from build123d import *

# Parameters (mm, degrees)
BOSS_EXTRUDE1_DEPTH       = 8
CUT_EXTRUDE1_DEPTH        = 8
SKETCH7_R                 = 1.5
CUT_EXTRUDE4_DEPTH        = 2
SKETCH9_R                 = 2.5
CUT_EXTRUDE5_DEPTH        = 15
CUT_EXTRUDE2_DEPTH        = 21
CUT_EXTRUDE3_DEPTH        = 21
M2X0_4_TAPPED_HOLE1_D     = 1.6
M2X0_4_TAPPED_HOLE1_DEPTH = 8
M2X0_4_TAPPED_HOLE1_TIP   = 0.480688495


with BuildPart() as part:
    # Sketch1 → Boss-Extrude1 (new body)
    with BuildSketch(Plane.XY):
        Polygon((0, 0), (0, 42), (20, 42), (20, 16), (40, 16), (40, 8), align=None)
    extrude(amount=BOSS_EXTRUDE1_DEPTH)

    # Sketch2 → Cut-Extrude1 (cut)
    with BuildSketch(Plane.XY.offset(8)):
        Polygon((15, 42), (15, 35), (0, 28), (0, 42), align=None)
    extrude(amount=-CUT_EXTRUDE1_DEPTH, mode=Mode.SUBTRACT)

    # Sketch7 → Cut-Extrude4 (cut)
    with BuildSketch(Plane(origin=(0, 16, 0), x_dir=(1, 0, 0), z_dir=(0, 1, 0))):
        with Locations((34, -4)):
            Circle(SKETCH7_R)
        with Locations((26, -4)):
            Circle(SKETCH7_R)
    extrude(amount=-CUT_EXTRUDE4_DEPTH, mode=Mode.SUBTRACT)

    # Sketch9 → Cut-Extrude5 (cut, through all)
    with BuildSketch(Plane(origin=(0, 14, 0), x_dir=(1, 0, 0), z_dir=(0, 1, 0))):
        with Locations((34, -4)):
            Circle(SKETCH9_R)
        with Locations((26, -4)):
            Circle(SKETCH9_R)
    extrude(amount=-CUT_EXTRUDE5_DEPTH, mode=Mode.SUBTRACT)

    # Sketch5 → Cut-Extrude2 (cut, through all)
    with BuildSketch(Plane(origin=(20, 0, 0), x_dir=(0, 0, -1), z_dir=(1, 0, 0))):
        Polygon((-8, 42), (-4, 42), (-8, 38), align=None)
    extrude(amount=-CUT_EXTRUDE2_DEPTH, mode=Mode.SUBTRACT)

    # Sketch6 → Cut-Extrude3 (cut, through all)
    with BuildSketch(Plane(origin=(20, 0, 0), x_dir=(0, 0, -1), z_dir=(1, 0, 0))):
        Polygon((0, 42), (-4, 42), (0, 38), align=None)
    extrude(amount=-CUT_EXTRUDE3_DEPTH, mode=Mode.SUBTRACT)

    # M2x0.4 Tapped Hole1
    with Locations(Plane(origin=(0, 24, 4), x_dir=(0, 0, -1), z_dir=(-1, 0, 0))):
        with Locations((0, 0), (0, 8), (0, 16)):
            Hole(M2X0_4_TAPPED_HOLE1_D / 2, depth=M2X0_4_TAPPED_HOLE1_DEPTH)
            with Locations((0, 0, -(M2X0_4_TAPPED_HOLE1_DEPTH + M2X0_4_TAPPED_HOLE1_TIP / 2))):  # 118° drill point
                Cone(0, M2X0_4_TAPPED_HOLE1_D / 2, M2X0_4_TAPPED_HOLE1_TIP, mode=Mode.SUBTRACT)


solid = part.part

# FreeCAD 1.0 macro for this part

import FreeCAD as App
import Part
import Sketcher
from FreeCAD import Vector
Q = App.Units.Quantity

doc = App.newDocument("Part")
body = doc.addObject("PartDesign::Body", "Body")

# Sketch on XY plane
sketch1 = body.newObject("Sketcher::SketchObject", "Sketch")
sketch1.AttachmentSupport = (doc.getObject("XY_Plane"), [""])
sketch1.MapMode = "FlatFace"
sketch1.addGeometry(Part.LineSegment(Vector(0, 42, 0), Vector(0, 0, 0)), False)
sketch1.addGeometry(Part.LineSegment(Vector(0, 0, 0), Vector(40, 8, 0)), False)
sketch1.addGeometry(Part.LineSegment(Vector(40, 8, 0), Vector(40, 16, 0)), False)
sketch1.addGeometry(Part.LineSegment(Vector(40, 16, 0), Vector(20, 16, 0)), False)
sketch1.addGeometry(Part.LineSegment(Vector(20, 16, 0), Vector(20, 42, 0)), False)
sketch1.addGeometry(Part.LineSegment(Vector(20, 42, 0), Vector(0, 42, 0)), False)
sketch1.addConstraint(Sketcher.Constraint("Coincident", 0, 2, 1, 1))
sketch1.addConstraint(Sketcher.Constraint("Coincident", 1, 2, 2, 1))
sketch1.addConstraint(Sketcher.Constraint("Coincident", 2, 2, 3, 1))
sketch1.addConstraint(Sketcher.Constraint("Coincident", 3, 2, 4, 1))
sketch1.addConstraint(Sketcher.Constraint("Coincident", 4, 2, 5, 1))
sketch1.addConstraint(Sketcher.Constraint("Coincident", 5, 2, 0, 1))
sketch1.addConstraint(Sketcher.Constraint("Vertical", 0))
sketch1.addConstraint(Sketcher.Constraint("Vertical", 2))
sketch1.addConstraint(Sketcher.Constraint("Horizontal", 3))
sketch1.addConstraint(Sketcher.Constraint("Vertical", 4))
sketch1.addConstraint(Sketcher.Constraint("Horizontal", 5))
sketch1.addConstraint(Sketcher.Constraint("Coincident", 0, 2, -1, 1))
sketch1.addConstraint(Sketcher.Constraint("Equal", 3, 5))
sketch1.addConstraint(Sketcher.Constraint("DistanceX", 3, 2, 3, 1, Q("20 mm")))
sketch1.addConstraint(Sketcher.Constraint("DistanceY", 0, 2, 0, 1, Q("42 mm")))
sketch1.addConstraint(Sketcher.Constraint("DistanceY", 2, 1, 2, 2, Q("8 mm")))
sketch1.addConstraint(Sketcher.Constraint("DistanceY", 4, 1, 4, 2, Q("26 mm")))
pad1 = body.newObject("PartDesign::Pad", "Pad")
pad1.Profile = sketch1
pad1.Length = 8

# Sketch on XY plane
sketch2 = body.newObject("Sketcher::SketchObject", "Sketch001")
sketch2.AttachmentSupport = (doc.getObject("XY_Plane"), [""])
sketch2.MapMode = "FlatFace"
sketch2.AttachmentOffset = App.Placement(Vector(0, 0, 8), App.Rotation())
sketch2.addGeometry(Part.LineSegment(Vector(15, 35, 0), Vector(15, 42, 0)), False)
sketch2.addGeometry(Part.LineSegment(Vector(15, 42, 0), Vector(0, 42, 0)), False)
sketch2.addGeometry(Part.LineSegment(Vector(0, 42, 0), Vector(0, 28, 0)), False)
sketch2.addGeometry(Part.LineSegment(Vector(0, 28, 0), Vector(15, 35, 0)), False)
sketch2.addConstraint(Sketcher.Constraint("Coincident", 0, 2, 1, 1))
sketch2.addConstraint(Sketcher.Constraint("Coincident", 1, 2, 2, 1))
sketch2.addConstraint(Sketcher.Constraint("Coincident", 2, 2, 3, 1))
sketch2.addConstraint(Sketcher.Constraint("Coincident", 3, 2, 0, 1))
sketch2.addConstraint(Sketcher.Constraint("Vertical", 0))
sketch2.addConstraint(Sketcher.Constraint("Horizontal", 1))
sketch2.addConstraint(Sketcher.Constraint("Vertical", 2))
sketch2.addConstraint(Sketcher.Constraint("PointOnObject", 1, 2, -2))
sketch2.addConstraint(Sketcher.Constraint("DistanceX", 1, 2, 1, 1, Q("15 mm")))
sketch2.addConstraint(Sketcher.Constraint("DistanceY", 0, 1, 0, 2, Q("7 mm")))
sketch2.addConstraint(Sketcher.Constraint("DistanceY", 2, 2, 2, 1, Q("14 mm")))
sketch2.addConstraint(Sketcher.Constraint("DistanceY", -1, 1, 0, 2, Q("42 mm")))
pocket1 = body.newObject("PartDesign::Pocket", "Pocket")
pocket1.Profile = sketch2
pocket1.Length = 8

# Sketch on XZ plane
sketch3 = body.newObject("Sketcher::SketchObject", "Sketch002")
sketch3.AttachmentSupport = (doc.getObject("XZ_Plane"), [""])
sketch3.MapMode = "FlatFace"
sketch3.AttachmentOffset = App.Placement(Vector(0, 0, -16), App.Rotation())
sketch3.addGeometry(Part.Circle(Vector(34, 4, 0), Vector(0, 0, 1), 1.5), False)
sketch3.addGeometry(Part.Circle(Vector(26, 4, 0), Vector(0, 0, 1), 1.5), False)
sketch3.addConstraint(Sketcher.Constraint("Equal", 0, 1))
sketch3.addConstraint(Sketcher.Constraint("Horizontal", 0, 3, 1, 3))
sketch3.addConstraint(Sketcher.Constraint("Diameter", 0, Q("3 mm")))
sketch3.addConstraint(Sketcher.Constraint("DistanceX", -1, 1, 0, 3, Q("34 mm")))
sketch3.addConstraint(Sketcher.Constraint("DistanceY", -1, 1, 0, 3, Q("4 mm")))
sketch3.addConstraint(Sketcher.Constraint("DistanceX", -1, 1, 1, 3, Q("26 mm")))
pocket2 = body.newObject("PartDesign::Pocket", "Pocket001")
pocket2.Profile = sketch3
pocket2.Length = 2
pocket2.Reversed = True

# Sketch on XZ plane
sketch4 = body.newObject("Sketcher::SketchObject", "Sketch003")
sketch4.AttachmentSupport = (doc.getObject("XZ_Plane"), [""])
sketch4.MapMode = "FlatFace"
sketch4.AttachmentOffset = App.Placement(Vector(0, 0, -14), App.Rotation())
sketch4.addGeometry(Part.Circle(Vector(34, 4, 0), Vector(0, 0, 1), 2.5), False)
sketch4.addGeometry(Part.Circle(Vector(26, 4, 0), Vector(0, 0, 1), 2.5), False)
sketch4.addConstraint(Sketcher.Constraint("Equal", 0, 1))
sketch4.addConstraint(Sketcher.Constraint("Horizontal", 0, 3, 1, 3))
sketch4.addConstraint(Sketcher.Constraint("Diameter", 0, Q("5 mm")))
sketch4.addConstraint(Sketcher.Constraint("DistanceX", -1, 1, 0, 3, Q("34 mm")))
sketch4.addConstraint(Sketcher.Constraint("DistanceY", -1, 1, 0, 3, Q("4 mm")))
sketch4.addConstraint(Sketcher.Constraint("DistanceX", -1, 1, 1, 3, Q("26 mm")))
pocket3 = body.newObject("PartDesign::Pocket", "Pocket002")
pocket3.Profile = sketch4
pocket3.Type = "ThroughAll"
pocket3.Reversed = True

# Sketch on YZ plane
sketch5 = body.newObject("Sketcher::SketchObject", "Sketch004")
sketch5.AttachmentSupport = (doc.getObject("YZ_Plane"), [""])
sketch5.MapMode = "FlatFace"
sketch5.AttachmentOffset = App.Placement(Vector(0, 0, 20), App.Rotation())
sketch5.addGeometry(Part.LineSegment(Vector(42, 4, 0), Vector(42, 8, 0)), False)
sketch5.addGeometry(Part.LineSegment(Vector(42, 8, 0), Vector(38, 8, 0)), False)
sketch5.addGeometry(Part.LineSegment(Vector(38, 8, 0), Vector(42, 4, 0)), False)
sketch5.addConstraint(Sketcher.Constraint("Coincident", 0, 2, 1, 1))
sketch5.addConstraint(Sketcher.Constraint("Coincident", 1, 2, 2, 1))
sketch5.addConstraint(Sketcher.Constraint("Coincident", 2, 2, 0, 1))
sketch5.addConstraint(Sketcher.Constraint("Vertical", 0))
sketch5.addConstraint(Sketcher.Constraint("Horizontal", 1))
sketch5.addConstraint(Sketcher.Constraint("Equal", 1, 0))
sketch5.addConstraint(Sketcher.Constraint("DistanceX", 1, 2, 1, 1, Q("4 mm")))
sketch5.addConstraint(Sketcher.Constraint("DistanceX", -1, 1, 0, 2, Q("42 mm")))
sketch5.addConstraint(Sketcher.Constraint("DistanceY", -1, 1, 0, 2, Q("8 mm")))
pocket4 = body.newObject("PartDesign::Pocket", "Pocket003")
pocket4.Profile = sketch5
pocket4.Type = "ThroughAll"

# Sketch on YZ plane
sketch6 = body.newObject("Sketcher::SketchObject", "Sketch005")
sketch6.AttachmentSupport = (doc.getObject("YZ_Plane"), [""])
sketch6.MapMode = "FlatFace"
sketch6.AttachmentOffset = App.Placement(Vector(0, 0, 20), App.Rotation())
sketch6.addGeometry(Part.LineSegment(Vector(42, 0, 0), Vector(42, 4, 0)), False)
sketch6.addGeometry(Part.LineSegment(Vector(42, 4, 0), Vector(38, 0, 0)), False)
sketch6.addGeometry(Part.LineSegment(Vector(38, 0, 0), Vector(42, 0, 0)), False)
sketch6.addConstraint(Sketcher.Constraint("Coincident", 0, 2, 1, 1))
sketch6.addConstraint(Sketcher.Constraint("Coincident", 1, 2, 2, 1))
sketch6.addConstraint(Sketcher.Constraint("Coincident", 2, 2, 0, 1))
sketch6.addConstraint(Sketcher.Constraint("Vertical", 0))
sketch6.addConstraint(Sketcher.Constraint("Horizontal", 2))
sketch6.addConstraint(Sketcher.Constraint("PointOnObject", 1, 2, -1))
sketch6.addConstraint(Sketcher.Constraint("Equal", 2, 0))
sketch6.addConstraint(Sketcher.Constraint("DistanceX", 2, 1, 2, 2, Q("4 mm")))
sketch6.addConstraint(Sketcher.Constraint("DistanceX", -1, 1, 0, 2, Q("42 mm")))
pocket5 = body.newObject("PartDesign::Pocket", "Pocket004")
pocket5.Profile = sketch6
pocket5.Type = "ThroughAll"

# Sketch on YZ plane
sketch7 = body.newObject("Sketcher::SketchObject", "Sketch006")
sketch7.AttachmentSupport = (doc.getObject("YZ_Plane"), [""])
sketch7.MapMode = "FlatFace"
sketch7.addGeometry(Part.Circle(Vector(24, 4, 0), Vector(0, 0, 1), 0.8), False)
sketch7.addGeometry(Part.Circle(Vector(16, 4, 0), Vector(0, 0, 1), 0.8), False)
sketch7.addGeometry(Part.Circle(Vector(8, 4, 0), Vector(0, 0, 1), 0.8), False)
sketch7.addConstraint(Sketcher.Constraint("Equal", 0, 1))
sketch7.addConstraint(Sketcher.Constraint("Equal", 1, 2))
sketch7.addConstraint(Sketcher.Constraint("Horizontal", 0, 3, 1, 3))
sketch7.addConstraint(Sketcher.Constraint("Horizontal", 1, 3, 2, 3))
sketch7.addConstraint(Sketcher.Constraint("Diameter", 0, Q("1.6 mm")))
sketch7.addConstraint(Sketcher.Constraint("DistanceX", -1, 1, 0, 3, Q("24 mm")))
sketch7.addConstraint(Sketcher.Constraint("DistanceY", -1, 1, 0, 3, Q("4 mm")))
sketch7.addConstraint(Sketcher.Constraint("DistanceX", -1, 1, 1, 3, Q("16 mm")))
sketch7.addConstraint(Sketcher.Constraint("DistanceX", -1, 1, 2, 3, Q("8 mm")))
doc.recompute()
hole = body.newObject("PartDesign::Hole", "Hole")
hole.Profile = sketch7
hole.ThreadType = "None"
hole.Diameter = 1.6
hole.DepthType = "Dimension"
hole.Depth = 8
hole.DrillPoint = "Angled"
hole.DrillPointAngle = 118
hole.Reversed = True

doc.recompute()
